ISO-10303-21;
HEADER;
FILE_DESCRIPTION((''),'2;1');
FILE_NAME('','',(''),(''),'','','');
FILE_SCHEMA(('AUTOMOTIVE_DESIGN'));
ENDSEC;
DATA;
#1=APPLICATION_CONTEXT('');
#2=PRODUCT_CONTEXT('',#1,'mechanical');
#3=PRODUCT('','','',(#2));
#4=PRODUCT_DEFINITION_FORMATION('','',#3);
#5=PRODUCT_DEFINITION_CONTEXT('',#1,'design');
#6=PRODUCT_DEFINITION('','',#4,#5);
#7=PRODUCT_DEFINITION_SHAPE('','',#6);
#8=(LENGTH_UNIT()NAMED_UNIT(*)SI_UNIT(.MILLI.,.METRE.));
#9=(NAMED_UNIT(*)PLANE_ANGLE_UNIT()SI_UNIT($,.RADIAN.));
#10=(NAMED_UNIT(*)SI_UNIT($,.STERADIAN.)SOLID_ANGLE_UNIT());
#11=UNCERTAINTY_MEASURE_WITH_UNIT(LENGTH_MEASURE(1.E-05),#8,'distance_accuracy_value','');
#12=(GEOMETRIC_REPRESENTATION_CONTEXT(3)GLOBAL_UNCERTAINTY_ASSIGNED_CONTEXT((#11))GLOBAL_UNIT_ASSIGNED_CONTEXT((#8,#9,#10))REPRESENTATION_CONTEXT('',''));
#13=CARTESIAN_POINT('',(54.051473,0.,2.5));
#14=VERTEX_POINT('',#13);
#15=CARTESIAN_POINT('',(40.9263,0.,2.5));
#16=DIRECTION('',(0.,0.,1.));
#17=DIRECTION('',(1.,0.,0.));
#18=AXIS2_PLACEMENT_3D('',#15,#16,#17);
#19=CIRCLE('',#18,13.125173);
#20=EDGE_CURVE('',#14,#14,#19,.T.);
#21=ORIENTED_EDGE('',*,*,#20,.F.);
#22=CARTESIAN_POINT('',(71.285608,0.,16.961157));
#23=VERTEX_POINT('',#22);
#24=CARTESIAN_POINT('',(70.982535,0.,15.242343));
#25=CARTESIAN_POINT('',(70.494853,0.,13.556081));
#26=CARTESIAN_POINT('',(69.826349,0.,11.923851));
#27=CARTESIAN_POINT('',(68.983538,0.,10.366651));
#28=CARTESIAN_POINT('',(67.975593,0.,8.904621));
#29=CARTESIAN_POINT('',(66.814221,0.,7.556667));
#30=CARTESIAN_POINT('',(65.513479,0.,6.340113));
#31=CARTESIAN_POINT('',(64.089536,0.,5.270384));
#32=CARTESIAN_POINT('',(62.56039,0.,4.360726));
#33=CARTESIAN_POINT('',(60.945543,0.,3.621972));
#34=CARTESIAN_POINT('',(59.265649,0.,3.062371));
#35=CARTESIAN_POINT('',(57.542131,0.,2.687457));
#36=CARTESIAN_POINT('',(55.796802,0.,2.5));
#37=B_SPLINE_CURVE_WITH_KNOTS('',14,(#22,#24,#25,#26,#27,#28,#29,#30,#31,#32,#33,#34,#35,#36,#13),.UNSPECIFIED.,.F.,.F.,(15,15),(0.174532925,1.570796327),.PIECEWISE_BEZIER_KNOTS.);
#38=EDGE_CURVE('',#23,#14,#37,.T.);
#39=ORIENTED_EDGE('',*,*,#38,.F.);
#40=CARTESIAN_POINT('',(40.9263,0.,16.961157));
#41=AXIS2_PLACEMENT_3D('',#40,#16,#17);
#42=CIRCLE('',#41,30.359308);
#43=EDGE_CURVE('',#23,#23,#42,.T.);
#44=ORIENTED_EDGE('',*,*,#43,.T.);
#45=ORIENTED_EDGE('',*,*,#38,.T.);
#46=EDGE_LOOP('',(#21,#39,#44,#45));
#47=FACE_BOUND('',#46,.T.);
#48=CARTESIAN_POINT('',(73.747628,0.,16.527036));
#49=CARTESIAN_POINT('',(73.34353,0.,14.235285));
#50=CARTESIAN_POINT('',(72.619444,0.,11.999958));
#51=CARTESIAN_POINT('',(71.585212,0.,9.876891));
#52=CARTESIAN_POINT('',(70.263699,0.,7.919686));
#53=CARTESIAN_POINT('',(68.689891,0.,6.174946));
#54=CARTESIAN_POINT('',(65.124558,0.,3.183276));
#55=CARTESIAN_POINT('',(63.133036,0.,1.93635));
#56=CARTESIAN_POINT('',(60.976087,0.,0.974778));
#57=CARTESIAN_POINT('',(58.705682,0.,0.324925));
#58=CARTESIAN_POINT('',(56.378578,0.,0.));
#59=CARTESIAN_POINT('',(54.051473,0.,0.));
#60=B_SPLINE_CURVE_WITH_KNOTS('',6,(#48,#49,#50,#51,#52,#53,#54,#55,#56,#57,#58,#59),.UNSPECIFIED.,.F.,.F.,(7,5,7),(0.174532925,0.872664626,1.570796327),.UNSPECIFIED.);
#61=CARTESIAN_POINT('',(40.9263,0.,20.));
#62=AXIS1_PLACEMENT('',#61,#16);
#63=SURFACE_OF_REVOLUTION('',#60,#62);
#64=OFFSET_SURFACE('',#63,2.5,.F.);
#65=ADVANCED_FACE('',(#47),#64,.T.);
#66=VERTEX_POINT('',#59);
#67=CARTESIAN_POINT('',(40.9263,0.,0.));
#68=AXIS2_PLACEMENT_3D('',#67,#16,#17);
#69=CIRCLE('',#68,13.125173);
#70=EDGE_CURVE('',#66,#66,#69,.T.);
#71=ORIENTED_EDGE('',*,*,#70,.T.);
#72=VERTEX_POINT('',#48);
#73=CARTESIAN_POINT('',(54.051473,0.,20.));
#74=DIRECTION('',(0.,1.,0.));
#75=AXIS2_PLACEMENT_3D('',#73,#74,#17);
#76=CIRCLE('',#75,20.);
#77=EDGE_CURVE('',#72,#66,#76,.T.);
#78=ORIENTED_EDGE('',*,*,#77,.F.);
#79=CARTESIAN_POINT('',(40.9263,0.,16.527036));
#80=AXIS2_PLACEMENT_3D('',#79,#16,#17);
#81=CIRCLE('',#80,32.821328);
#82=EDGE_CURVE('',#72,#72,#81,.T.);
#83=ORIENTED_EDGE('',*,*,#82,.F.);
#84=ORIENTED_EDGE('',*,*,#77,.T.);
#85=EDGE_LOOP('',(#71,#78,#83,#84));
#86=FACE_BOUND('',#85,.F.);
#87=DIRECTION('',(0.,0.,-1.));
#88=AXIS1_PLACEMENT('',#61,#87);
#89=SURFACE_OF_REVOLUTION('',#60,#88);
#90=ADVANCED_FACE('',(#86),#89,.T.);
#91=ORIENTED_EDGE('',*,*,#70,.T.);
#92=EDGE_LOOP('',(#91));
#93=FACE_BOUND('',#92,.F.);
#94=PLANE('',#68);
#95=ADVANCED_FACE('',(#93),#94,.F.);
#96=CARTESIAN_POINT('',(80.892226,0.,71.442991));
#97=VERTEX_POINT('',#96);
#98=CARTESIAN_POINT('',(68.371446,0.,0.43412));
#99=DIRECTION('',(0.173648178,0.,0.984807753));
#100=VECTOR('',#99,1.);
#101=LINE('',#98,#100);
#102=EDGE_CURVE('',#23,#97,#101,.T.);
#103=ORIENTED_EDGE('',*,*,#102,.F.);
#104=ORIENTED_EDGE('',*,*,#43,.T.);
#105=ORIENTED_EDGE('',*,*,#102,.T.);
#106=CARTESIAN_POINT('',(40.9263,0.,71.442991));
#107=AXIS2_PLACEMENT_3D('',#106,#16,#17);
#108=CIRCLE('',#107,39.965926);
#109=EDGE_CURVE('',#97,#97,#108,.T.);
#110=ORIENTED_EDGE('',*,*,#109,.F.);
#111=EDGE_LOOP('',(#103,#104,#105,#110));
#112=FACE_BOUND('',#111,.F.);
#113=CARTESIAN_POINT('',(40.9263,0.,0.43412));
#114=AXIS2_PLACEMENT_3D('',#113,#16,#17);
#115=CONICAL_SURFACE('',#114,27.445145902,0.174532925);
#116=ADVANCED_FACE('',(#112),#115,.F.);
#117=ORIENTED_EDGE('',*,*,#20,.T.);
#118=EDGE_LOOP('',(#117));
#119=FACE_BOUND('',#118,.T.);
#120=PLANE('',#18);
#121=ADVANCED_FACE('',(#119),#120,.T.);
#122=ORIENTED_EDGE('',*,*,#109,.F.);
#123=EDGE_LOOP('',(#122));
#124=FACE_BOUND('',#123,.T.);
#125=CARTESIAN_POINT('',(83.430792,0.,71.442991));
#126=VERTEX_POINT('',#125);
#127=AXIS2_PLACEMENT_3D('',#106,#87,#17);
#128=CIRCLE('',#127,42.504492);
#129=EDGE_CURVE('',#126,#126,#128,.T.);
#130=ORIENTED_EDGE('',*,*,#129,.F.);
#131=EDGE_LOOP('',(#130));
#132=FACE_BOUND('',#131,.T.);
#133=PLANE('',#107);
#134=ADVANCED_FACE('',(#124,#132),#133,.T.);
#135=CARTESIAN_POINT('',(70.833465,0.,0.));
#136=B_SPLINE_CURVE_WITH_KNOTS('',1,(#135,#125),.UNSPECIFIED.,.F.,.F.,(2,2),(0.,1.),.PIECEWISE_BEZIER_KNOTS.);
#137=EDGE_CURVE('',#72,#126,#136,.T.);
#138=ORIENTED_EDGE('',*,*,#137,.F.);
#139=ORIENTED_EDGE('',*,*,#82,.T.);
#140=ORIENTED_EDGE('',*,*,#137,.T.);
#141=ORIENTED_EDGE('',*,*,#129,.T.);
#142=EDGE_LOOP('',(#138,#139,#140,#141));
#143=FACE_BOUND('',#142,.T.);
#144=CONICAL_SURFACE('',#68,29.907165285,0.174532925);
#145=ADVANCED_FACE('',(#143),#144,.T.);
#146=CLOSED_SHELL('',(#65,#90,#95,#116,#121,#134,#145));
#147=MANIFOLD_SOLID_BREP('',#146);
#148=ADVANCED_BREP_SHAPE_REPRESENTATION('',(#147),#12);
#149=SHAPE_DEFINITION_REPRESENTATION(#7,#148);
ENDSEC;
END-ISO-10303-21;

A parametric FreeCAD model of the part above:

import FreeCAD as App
import Part
import Sketcher
from FreeCAD import Vector
Q = App.Units.Quantity


def edges_at(feature, points):
    """Names of the edges that pass closest to the given points."""
    edges = feature.Shape.Edges
    near = lambda p: min(range(len(edges)), key=lambda i: edges[i].distToShape(Part.Vertex(*p))[0])
    return sorted({f"Edge{near(p) + 1}" for p in points})


def faces_at(feature, points):
    """Names of the faces that lie closest to the given points."""
    faces = feature.Shape.Faces
    near = lambda p: min(range(len(faces)), key=lambda i: faces[i].distToShape(Part.Vertex(*p))[0])
    return sorted({f"Face{near(p) + 1}" for p in points})

doc = App.newDocument("Part")
params = doc.addObject("Spreadsheet::Sheet", "Params")
for row, (alias, value) in enumerate([
    ("pad1_length", "71.442991 mm"),
    ("pad1_taper", "10 deg"),
    ("fillet_radius", "20 mm"),
    ("thickness_wall", "2.5 mm"),
], start=1):
    params.set(f"A{row}", alias)
    params.set(f"B{row}", "=" + value)
    params.setAlias(f"B{row}", alias)

body = doc.addObject("PartDesign::Body", "Body")

# Sketch on XY plane
sketch1 = doc.addObject("Sketcher::SketchObject", "Sketch")
body.addObject(sketch1)
sketch1.AttachmentSupport = (doc.XY_Plane, [""])
sketch1.MapMode = "FlatFace"
sketch1.addGeometry(Part.Circle(Vector(41, 0, 0), Vector(0, 0, 1), 30), False)
sketch1.addConstraint([
    Sketcher.Constraint("PointOnObject", 0, 3, -1),
    Sketcher.Constraint("Diameter", 0, Q("59.814331 mm")),
    Sketcher.Constraint("DistanceX", -1, 1, 0, 3, Q("40.9263 mm")),
])
pad1 = doc.addObject("PartDesign::Pad", "Pad")
body.addObject(pad1)
pad1.Profile = sketch1
pad1.setExpression("Length", "Params.pad1_length")
pad1.setExpression("TaperAngle", "Params.pad1_taper")
doc.recompute()

fillet = doc.addObject("PartDesign::Fillet", "Fillet")
body.addObject(fillet)
fillet.Base = (pad1, edges_at(pad1, [(11.019, 0, 0)]))
fillet.setExpression("Radius", "Params.fillet_radius")
doc.recompute()

thickness = doc.addObject("PartDesign::Thickness", "Thickness")
body.addObject(thickness)
thickness.Base = (fillet, faces_at(fillet, [(40.926, 0, 71.443)]))
thickness.setExpression("Value", "Params.thickness_wall")
thickness.Reversed = True
thickness.Join = "Intersection"

doc.recompute()
